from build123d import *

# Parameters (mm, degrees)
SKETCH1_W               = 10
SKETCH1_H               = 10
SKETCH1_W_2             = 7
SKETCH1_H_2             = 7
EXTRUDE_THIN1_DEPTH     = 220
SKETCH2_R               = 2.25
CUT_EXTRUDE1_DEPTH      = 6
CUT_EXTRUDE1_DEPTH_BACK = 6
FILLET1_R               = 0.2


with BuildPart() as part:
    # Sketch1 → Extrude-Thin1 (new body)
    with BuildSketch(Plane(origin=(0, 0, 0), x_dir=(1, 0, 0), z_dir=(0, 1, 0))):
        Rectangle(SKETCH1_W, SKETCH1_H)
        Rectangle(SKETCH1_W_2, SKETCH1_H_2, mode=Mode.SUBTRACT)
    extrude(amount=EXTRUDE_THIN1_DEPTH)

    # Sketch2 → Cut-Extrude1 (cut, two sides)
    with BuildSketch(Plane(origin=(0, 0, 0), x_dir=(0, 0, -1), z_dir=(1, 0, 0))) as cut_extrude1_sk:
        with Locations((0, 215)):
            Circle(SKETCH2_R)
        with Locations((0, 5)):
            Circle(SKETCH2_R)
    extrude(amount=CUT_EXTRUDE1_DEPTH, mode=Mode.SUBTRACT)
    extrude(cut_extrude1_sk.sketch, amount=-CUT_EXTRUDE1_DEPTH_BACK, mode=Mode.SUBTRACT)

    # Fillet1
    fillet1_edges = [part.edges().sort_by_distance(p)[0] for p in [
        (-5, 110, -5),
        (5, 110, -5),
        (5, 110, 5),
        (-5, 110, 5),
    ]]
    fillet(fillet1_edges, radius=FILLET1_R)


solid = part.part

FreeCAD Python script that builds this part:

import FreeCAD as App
import Part
import Sketcher

V = App.Vector


def edges_at(feature, points):
    """Names of the edges that pass closest to the given points."""
    edges = feature.Shape.Edges
    near = lambda p: min(range(len(edges)), key=lambda i: edges[i].distToShape(Part.Vertex(*p))[0])
    return sorted({f"Edge{near(p) + 1}" for p in points})


def add_polygon(sketch, points):
    """Adds a closed chain of lines whose ends are joined by coincident constraints."""
    first, n = sketch.GeometryCount, len(points)
    for a, b in zip(points, points[1:] + points[:1]):
        sketch.addGeometry(Part.LineSegment(App.Vector(*a, 0), App.Vector(*b, 0)), False)
    for i in range(n):
        sketch.addConstraint(Sketcher.Constraint("Coincident", first + i, 2, first + (i + 1) % n, 1))

doc = App.newDocument("Part")
body = doc.addObject("PartDesign::Body", "Body")

# Sketch on XZ plane
sketch1 = body.newObject("Sketcher::SketchObject", "Sketch")
sketch1.AttachmentSupport = (doc.getObject("XZ_Plane"), [""])
sketch1.MapMode = "FlatFace"
add_polygon(sketch1, [(-5, -5), (-5, 5), (5, 5), (5, -5)])  # lines 0-3
add_polygon(sketch1, [(3.5, 3.5), (-3.5, 3.5), (-3.5, -3.5), (3.5, -3.5)])  # lines 4-7
sketch1.addConstraint([
    Sketcher.Constraint("Vertical", 0),
    Sketcher.Constraint("Horizontal", 1),
    Sketcher.Constraint("Vertical", 2),
    Sketcher.Constraint("Horizontal", 3),
    Sketcher.Constraint("Horizontal", 4),
    Sketcher.Constraint("Vertical", 5),
    Sketcher.Constraint("Horizontal", 6),
    Sketcher.Constraint("Vertical", 7),
    Sketcher.Constraint("Symmetric", 0, 2, 2, 2, -1, 1),
    Sketcher.Constraint("Symmetric", 4, 2, 6, 2, -1, 1),
    Sketcher.Constraint("Equal", 3, 0),
    Sketcher.Constraint("Equal", 6, 5),
    Sketcher.Constraint("DistanceX", 1, 1, 1, 2, 10.0),
    Sketcher.Constraint("DistanceX", 4, 2, 4, 1, 7.0),
])
pad1 = body.newObject("PartDesign::Pad", "Pad")
pad1.Profile = sketch1
pad1.Length = 220
pad1.Reversed = True

# Sketch on YZ plane
sketch2 = body.newObject("Sketcher::SketchObject", "Sketch001")
sketch2.AttachmentSupport = (doc.getObject("YZ_Plane"), [""])
sketch2.MapMode = "FlatFace"
sketch2.addGeometry([
    Part.Circle(V(215, 0, 0), V(0, 0, 1), 2.25),
    Part.Circle(V(5, 0, 0), V(0, 0, 1), 2.25),
], False)
sketch2.addConstraint([
    Sketcher.Constraint("Equal", 0, 1),
    Sketcher.Constraint("PointOnObject", 0, 3, -1),
    Sketcher.Constraint("PointOnObject", 1, 3, -1),
    Sketcher.Constraint("Diameter", 0, 4.5),
    Sketcher.Constraint("DistanceX", -1, 1, 0, 3, 215.0),
    Sketcher.Constraint("DistanceX", -1, 1, 1, 3, 5.0),
])
pocket1 = body.newObject("PartDesign::Pocket", "Pocket")
pocket1.Profile = sketch2
pocket1.Type = "ThroughAll"
pocket1.Midplane = True
doc.recompute()

fillet = body.newObject("PartDesign::Fillet", "Fillet")
fillet.Base = (pocket1, edges_at(pocket1, [
    (-5, 110, -5),
    (5, 110, -5),
    (5, 110, 5),
    (-5, 110, 5),
]))
fillet.Radius = 0.2

doc.recompute()
